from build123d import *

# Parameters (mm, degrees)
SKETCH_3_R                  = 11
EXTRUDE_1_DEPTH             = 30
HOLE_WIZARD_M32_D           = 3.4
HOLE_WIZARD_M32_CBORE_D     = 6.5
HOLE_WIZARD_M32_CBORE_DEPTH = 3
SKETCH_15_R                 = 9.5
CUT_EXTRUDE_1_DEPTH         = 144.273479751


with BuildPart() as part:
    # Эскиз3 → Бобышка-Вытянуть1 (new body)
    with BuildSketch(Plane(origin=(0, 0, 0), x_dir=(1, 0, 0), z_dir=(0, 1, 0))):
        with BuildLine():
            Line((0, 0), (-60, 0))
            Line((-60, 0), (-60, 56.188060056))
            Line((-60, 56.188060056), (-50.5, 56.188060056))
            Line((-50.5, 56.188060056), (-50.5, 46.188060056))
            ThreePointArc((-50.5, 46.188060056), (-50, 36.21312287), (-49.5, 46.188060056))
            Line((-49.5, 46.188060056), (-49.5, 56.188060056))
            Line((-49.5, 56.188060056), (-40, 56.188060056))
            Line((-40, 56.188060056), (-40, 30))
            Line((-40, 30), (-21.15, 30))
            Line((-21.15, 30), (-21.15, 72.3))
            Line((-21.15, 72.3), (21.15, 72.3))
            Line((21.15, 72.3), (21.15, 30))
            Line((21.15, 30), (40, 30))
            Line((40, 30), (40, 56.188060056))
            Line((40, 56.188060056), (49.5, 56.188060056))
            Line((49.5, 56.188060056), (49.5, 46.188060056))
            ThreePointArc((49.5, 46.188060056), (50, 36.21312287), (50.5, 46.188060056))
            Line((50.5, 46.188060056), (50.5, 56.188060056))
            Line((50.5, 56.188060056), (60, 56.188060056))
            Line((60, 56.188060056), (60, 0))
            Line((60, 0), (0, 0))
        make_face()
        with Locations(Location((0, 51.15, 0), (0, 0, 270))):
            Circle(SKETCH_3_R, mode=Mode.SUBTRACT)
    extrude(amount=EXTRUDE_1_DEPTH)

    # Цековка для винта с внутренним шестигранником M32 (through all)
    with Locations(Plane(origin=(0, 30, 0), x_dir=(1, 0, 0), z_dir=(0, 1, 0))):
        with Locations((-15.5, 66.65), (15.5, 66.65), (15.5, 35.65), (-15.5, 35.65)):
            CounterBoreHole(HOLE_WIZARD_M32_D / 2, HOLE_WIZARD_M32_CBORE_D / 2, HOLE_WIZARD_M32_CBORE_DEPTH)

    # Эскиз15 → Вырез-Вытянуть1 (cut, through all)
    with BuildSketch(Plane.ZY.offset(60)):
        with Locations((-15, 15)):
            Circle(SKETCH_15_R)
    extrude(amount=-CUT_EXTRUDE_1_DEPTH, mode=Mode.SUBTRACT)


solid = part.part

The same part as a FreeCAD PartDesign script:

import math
import FreeCAD as App
import Part
import Sketcher
from FreeCAD import Vector
Q = App.Units.Quantity

doc = App.newDocument("Part")
params = doc.addObject("Spreadsheet::Sheet", "Params")
for row, (alias, value) in enumerate([
    ("sketch1_diameter", "22 mm"),
    ("sketch1_radius", "5 mm"),
    ("sketch1_width", "120 mm"),
    ("sketch1_height", "10 mm"),
    ("sketch1_width2", "9.5 mm"),
    ("pad1_length", "30 mm"),
    ("sketch2_diameter", "3.4 mm"),
    ("hole_diameter", "3.4 mm"),
    ("hole_cbore_diameter", "6.5 mm"),
    ("hole_cbore_depth", "3 mm"),
    ("sketch3_diameter", "19 mm"),
], start=1):
    params.set(f"A{row}", alias)
    params.set(f"B{row}", "=" + value)
    params.setAlias(f"B{row}", alias)

body = doc.addObject("PartDesign::Body", "Body")

# Sketch on XZ plane
sketch1 = body.newObject("Sketcher::SketchObject", "Sketch")
sketch1.AttachmentSupport = (doc.getObject("XZ_Plane"), [""])
sketch1.MapMode = "FlatFace"
sketch1.addGeometry(Part.LineSegment(Vector(-60, -56.2, 0), Vector(-60, 0, 0)), False)
sketch1.addGeometry(Part.LineSegment(Vector(-60, 0, 0), Vector(60, 0, 0)), False)
sketch1.addGeometry(Part.LineSegment(Vector(60, 0, 0), Vector(60, -56.2, 0)), False)
sketch1.addGeometry(Part.LineSegment(Vector(60, -56.2, 0), Vector(50.5, -56.2, 0)), False)
sketch1.addGeometry(Part.LineSegment(Vector(50.5, -56.2, 0), Vector(50.5, -46.2, 0)), False)
sketch1.addGeometry(Part.ArcOfCircle(Part.Circle(Vector(50, -41.2, 0), Vector(0, 0, 1), 5), math.radians(-84), math.radians(264)), False)
sketch1.addGeometry(Part.LineSegment(Vector(49.5, -46.2, 0), Vector(49.5, -56.2, 0)), False)
sketch1.addGeometry(Part.LineSegment(Vector(49.5, -56.2, 0), Vector(40, -56.2, 0)), False)
sketch1.addGeometry(Part.LineSegment(Vector(40, -56.2, 0), Vector(40, -30, 0)), False)
sketch1.addGeometry(Part.LineSegment(Vector(40, -30, 0), Vector(21.1, -30, 0)), False)
sketch1.addGeometry(Part.LineSegment(Vector(21.1, -30, 0), Vector(21.1, -72.3, 0)), False)
sketch1.addGeometry(Part.LineSegment(Vector(21.1, -72.3, 0), Vector(-21.1, -72.3, 0)), False)
sketch1.addGeometry(Part.LineSegment(Vector(-21.1, -72.3, 0), Vector(-21.1, -30, 0)), False)
sketch1.addGeometry(Part.LineSegment(Vector(-21.1, -30, 0), Vector(-40, -30, 0)), False)
sketch1.addGeometry(Part.LineSegment(Vector(-40, -30, 0), Vector(-40, -56.2, 0)), False)
sketch1.addGeometry(Part.LineSegment(Vector(-40, -56.2, 0), Vector(-49.5, -56.2, 0)), False)
sketch1.addGeometry(Part.LineSegment(Vector(-49.5, -56.2, 0), Vector(-49.5, -46.2, 0)), False)
sketch1.addGeometry(Part.ArcOfCircle(Part.Circle(Vector(-50, -41.2, 0), Vector(0, 0, 1), 5), math.radians(-84), math.radians(264)), False)
sketch1.addGeometry(Part.LineSegment(Vector(-50.5, -46.2, 0), Vector(-50.5, -56.2, 0)), False)
sketch1.addGeometry(Part.LineSegment(Vector(-50.5, -56.2, 0), Vector(-60, -56.2, 0)), False)
sketch1.addGeometry(Part.Circle(Vector(0, -51.1, 0), Vector(0, 0, 1), 11), False)
sketch1.addConstraint(Sketcher.Constraint("Coincident", 0, 2, 1, 1))
sketch1.addConstraint(Sketcher.Constraint("Coincident", 1, 2, 2, 1))
sketch1.addConstraint(Sketcher.Constraint("Coincident", 2, 2, 3, 1))
sketch1.addConstraint(Sketcher.Constraint("Coincident", 3, 2, 4, 1))
sketch1.addConstraint(Sketcher.Constraint("Coincident", 4, 2, 5, 1))
sketch1.addConstraint(Sketcher.Constraint("Coincident", 5, 2, 6, 1))
sketch1.addConstraint(Sketcher.Constraint("Coincident", 6, 2, 7, 1))
sketch1.addConstraint(Sketcher.Constraint("Coincident", 7, 2, 8, 1))
sketch1.addConstraint(Sketcher.Constraint("Coincident", 8, 2, 9, 1))
sketch1.addConstraint(Sketcher.Constraint("Coincident", 9, 2, 10, 1))
sketch1.addConstraint(Sketcher.Constraint("Coincident", 10, 2, 11, 1))
sketch1.addConstraint(Sketcher.Constraint("Coincident", 11, 2, 12, 1))
sketch1.addConstraint(Sketcher.Constraint("Coincident", 12, 2, 13, 1))
sketch1.addConstraint(Sketcher.Constraint("Coincident", 13, 2, 14, 1))
sketch1.addConstraint(Sketcher.Constraint("Coincident", 14, 2, 15, 1))
sketch1.addConstraint(Sketcher.Constraint("Coincident", 15, 2, 16, 1))
sketch1.addConstraint(Sketcher.Constraint("Coincident", 16, 2, 17, 1))
sketch1.addConstraint(Sketcher.Constraint("Coincident", 17, 2, 18, 1))
sketch1.addConstraint(Sketcher.Constraint("Coincident", 18, 2, 19, 1))
sketch1.addConstraint(Sketcher.Constraint("Coincident", 19, 2, 0, 1))
sketch1.addConstraint(Sketcher.Constraint("Vertical", 0))
sketch1.addConstraint(Sketcher.Constraint("Horizontal", 1))
sketch1.addConstraint(Sketcher.Constraint("Vertical", 2))
sketch1.addConstraint(Sketcher.Constraint("Horizontal", 3))
sketch1.addConstraint(Sketcher.Constraint("Vertical", 4))
sketch1.addConstraint(Sketcher.Constraint("Vertical", 6))
sketch1.addConstraint(Sketcher.Constraint("Horizontal", 7))
sketch1.addConstraint(Sketcher.Constraint("Vertical", 8))
sketch1.addConstraint(Sketcher.Constraint("Horizontal", 9))
sketch1.addConstraint(Sketcher.Constraint("Vertical", 10))
sketch1.addConstraint(Sketcher.Constraint("Horizontal", 11))
sketch1.addConstraint(Sketcher.Constraint("Vertical", 12))
sketch1.addConstraint(Sketcher.Constraint("Horizontal", 13))
sketch1.addConstraint(Sketcher.Constraint("Vertical", 14))
sketch1.addConstraint(Sketcher.Constraint("Horizontal", 15))
sketch1.addConstraint(Sketcher.Constraint("Vertical", 16))
sketch1.addConstraint(Sketcher.Constraint("Vertical", 18))
sketch1.addConstraint(Sketcher.Constraint("Horizontal", 19))
sketch1.addConstraint(Sketcher.Constraint("Equal", 5, 17))
sketch1.addConstraint(Sketcher.Constraint("Symmetric", 0, 2, 1, 2, -1, 1))
sketch1.addConstraint(Sketcher.Constraint("Symmetric", 5, 3, 17, 3, -2))
sketch1.addConstraint(Sketcher.Constraint("Symmetric", 9, 2, 12, 2, -2))
sketch1.addConstraint(Sketcher.Constraint("Symmetric", 7, 2, 14, 2, -2))
sketch1.addConstraint(Sketcher.Constraint("Symmetric", 3, 2, 18, 2, -2))
sketch1.addConstraint(Sketcher.Constraint("PointOnObject", 20, 3, -2))
sketch1.addConstraint(Sketcher.Constraint("Horizontal", 4, 2, 5, 2))
sketch1.addConstraint(Sketcher.Constraint("Horizontal", 3, 2, 6, 2))
sketch1.addConstraint(Sketcher.Constraint("Horizontal", 5, 2, 16, 2))
sketch1.addConstraint(Sketcher.Constraint("Equal", 3, 7))
sketch1.addConstraint(Sketcher.Constraint("Equal", 11, 10))
sketch1.addConstraint(Sketcher.Constraint("Diameter", 20, Q("22 mm")))
sketch1.addConstraint(Sketcher.Constraint("Radius", 5, Q("5 mm")))
sketch1.addConstraint(Sketcher.Constraint("DistanceX", 1, 1, 1, 2, Q("120 mm")))
sketch1.addConstraint(Sketcher.Constraint("DistanceY", 4, 1, 4, 2, Q("10 mm")))
sketch1.addConstraint(Sketcher.Constraint("DistanceX", 3, 2, 3, 1, Q("9.5 mm")))
sketch1.addConstraint(Sketcher.Constraint("DistanceX", 11, 2, 11, 1, Q("42.3 mm")))
sketch1.addConstraint(Sketcher.Constraint("DistanceX", -1, 1, 5, 3, Q("50 mm")))
sketch1.addConstraint(Sketcher.Constraint("DistanceY", 8, 2, -1, 1, Q("30 mm")))
sketch1.addConstraint(Sketcher.Constraint("DistanceY", 20, 3, -1, 1, Q("51.15 mm")))
sketch1.addConstraint(Sketcher.Constraint("DistanceY", 0, 1, 0, 2, Q("56.18806 mm")))
sketch1.setExpression("Constraints[50]", "Params.sketch1_diameter")
sketch1.setExpression("Constraints[51]", "Params.sketch1_radius")
sketch1.setExpression("Constraints[52]", "Params.sketch1_width")
sketch1.setExpression("Constraints[53]", "Params.sketch1_height")
sketch1.setExpression("Constraints[54]", "Params.sketch1_width2")
pad1 = body.newObject("PartDesign::Pad", "Pad")
pad1.Profile = sketch1
pad1.setExpression("Length", "Params.pad1_length")
pad1.Reversed = True

# Sketch on XZ plane
sketch2 = body.newObject("Sketcher::SketchObject", "Sketch001")
sketch2.AttachmentSupport = (doc.getObject("XZ_Plane"), [""])
sketch2.MapMode = "FlatFace"
sketch2.AttachmentOffset = App.Placement(Vector(0, 0, -30), App.Rotation())
sketch2.addGeometry(Part.Circle(Vector(-15.5, -66.7, 0), Vector(0, 0, 1), 1.7), False)
sketch2.addGeometry(Part.Circle(Vector(15.5, -66.7, 0), Vector(0, 0, 1), 1.7), False)
sketch2.addGeometry(Part.Circle(Vector(15.5, -35.6, 0), Vector(0, 0, 1), 1.7), False)
sketch2.addGeometry(Part.Circle(Vector(-15.5, -35.6, 0), Vector(0, 0, 1), 1.7), False)
sketch2.addConstraint(Sketcher.Constraint("Equal", 0, 1))
sketch2.addConstraint(Sketcher.Constraint("Equal", 1, 2))
sketch2.addConstraint(Sketcher.Constraint("Equal", 2, 3))
sketch2.addConstraint(Sketcher.Constraint("Symmetric", 0, 3, 1, 3, -2))
sketch2.addConstraint(Sketcher.Constraint("Symmetric", 2, 3, 3, 3, -2))
sketch2.addConstraint(Sketcher.Constraint("Vertical", 1, 3, 2, 3))
sketch2.addConstraint(Sketcher.Constraint("Diameter", 0, Q("3.4 mm")))
sketch2.addConstraint(Sketcher.Constraint("DistanceX", 0, 3, 1, 3, Q("31 mm")))
sketch2.addConstraint(Sketcher.Constraint("DistanceY", 1, 3, 2, 3, Q("31 mm")))
sketch2.addConstraint(Sketcher.Constraint("DistanceY", 0, 3, -1, 1, Q("66.65 mm")))
sketch2.setExpression("Constraints[6]", "Params.sketch2_diameter")
doc.recompute()
hole = body.newObject("PartDesign::Hole", "Hole")
hole.Profile = sketch2
hole.ThreadType = "None"
hole.setExpression("Diameter", "Params.hole_diameter")
hole.DepthType = "ThroughAll"
hole.HoleCutType = "Counterbore"
hole.setExpression("HoleCutDiameter", "Params.hole_cbore_diameter")
hole.setExpression("HoleCutDepth", "Params.hole_cbore_depth")
hole.Reversed = True

# Sketch on YZ plane
sketch3 = body.newObject("Sketcher::SketchObject", "Sketch002")
sketch3.AttachmentSupport = (doc.getObject("YZ_Plane"), [""])
sketch3.MapMode = "FlatFace"
sketch3.AttachmentOffset = App.Placement(Vector(0, 0, -60), App.Rotation())
sketch3.addGeometry(Part.Circle(Vector(15, -15, 0), Vector(0, 0, 1), 10), False)
sketch3.addConstraint(Sketcher.Constraint("Diameter", 0, Q("19 mm")))
sketch3.addConstraint(Sketcher.Constraint("DistanceX", -1, 1, 0, 3, Q("15 mm")))
sketch3.addConstraint(Sketcher.Constraint("DistanceY", 0, 3, -1, 1, Q("15 mm")))
sketch3.setExpression("Constraints[0]", "Params.sketch3_diameter")
pocket1 = body.newObject("PartDesign::Pocket", "Pocket")
pocket1.Profile = sketch3
pocket1.Type = "ThroughAll"
pocket1.Reversed = True

doc.recompute()
